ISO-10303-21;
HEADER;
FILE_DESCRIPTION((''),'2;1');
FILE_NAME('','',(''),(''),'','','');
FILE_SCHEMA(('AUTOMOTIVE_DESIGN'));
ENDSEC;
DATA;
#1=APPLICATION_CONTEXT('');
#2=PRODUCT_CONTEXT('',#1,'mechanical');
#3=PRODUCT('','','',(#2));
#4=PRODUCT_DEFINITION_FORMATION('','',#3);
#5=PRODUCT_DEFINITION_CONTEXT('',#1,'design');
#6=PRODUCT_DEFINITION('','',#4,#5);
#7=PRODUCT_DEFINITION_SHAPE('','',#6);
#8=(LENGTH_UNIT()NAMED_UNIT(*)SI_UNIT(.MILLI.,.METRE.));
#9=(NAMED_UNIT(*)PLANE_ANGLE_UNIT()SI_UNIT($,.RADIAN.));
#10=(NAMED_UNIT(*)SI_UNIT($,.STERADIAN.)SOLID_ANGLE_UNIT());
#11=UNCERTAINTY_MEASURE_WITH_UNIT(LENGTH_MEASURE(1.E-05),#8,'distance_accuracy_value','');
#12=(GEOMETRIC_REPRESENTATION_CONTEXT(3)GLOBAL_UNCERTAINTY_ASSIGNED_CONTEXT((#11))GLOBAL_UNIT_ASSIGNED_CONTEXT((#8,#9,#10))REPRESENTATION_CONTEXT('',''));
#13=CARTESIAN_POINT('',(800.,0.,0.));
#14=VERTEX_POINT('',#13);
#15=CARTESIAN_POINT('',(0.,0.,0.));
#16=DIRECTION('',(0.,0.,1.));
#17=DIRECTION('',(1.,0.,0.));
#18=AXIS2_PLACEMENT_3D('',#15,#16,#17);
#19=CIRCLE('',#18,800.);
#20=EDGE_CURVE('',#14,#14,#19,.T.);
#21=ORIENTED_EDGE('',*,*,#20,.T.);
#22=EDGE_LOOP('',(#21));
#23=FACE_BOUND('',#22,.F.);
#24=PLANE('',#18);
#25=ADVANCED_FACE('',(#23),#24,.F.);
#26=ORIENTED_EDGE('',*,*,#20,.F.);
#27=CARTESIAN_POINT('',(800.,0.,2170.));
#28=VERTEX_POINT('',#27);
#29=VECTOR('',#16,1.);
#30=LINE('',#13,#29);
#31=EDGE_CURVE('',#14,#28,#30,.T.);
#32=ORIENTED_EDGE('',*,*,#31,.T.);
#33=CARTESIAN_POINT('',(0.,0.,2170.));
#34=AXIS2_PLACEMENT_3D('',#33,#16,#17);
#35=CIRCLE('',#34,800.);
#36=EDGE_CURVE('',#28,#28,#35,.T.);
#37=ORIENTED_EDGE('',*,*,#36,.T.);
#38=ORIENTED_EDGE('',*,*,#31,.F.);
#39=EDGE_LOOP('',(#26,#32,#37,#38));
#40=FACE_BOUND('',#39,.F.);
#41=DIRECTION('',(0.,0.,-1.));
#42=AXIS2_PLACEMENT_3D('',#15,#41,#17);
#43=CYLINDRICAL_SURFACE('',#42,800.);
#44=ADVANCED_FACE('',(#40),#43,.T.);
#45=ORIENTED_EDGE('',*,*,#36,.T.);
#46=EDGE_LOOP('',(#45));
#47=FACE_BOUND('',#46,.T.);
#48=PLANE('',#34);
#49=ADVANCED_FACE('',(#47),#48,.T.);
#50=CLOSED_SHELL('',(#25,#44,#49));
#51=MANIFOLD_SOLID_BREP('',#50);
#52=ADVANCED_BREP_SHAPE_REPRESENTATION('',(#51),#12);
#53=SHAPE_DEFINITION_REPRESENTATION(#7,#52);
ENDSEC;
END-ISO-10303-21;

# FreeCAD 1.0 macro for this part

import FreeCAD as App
import Part
import Sketcher
Q = App.Units.Quantity

doc = App.newDocument("Part")
body = doc.addObject("PartDesign::Body", "Body")

# Sketch on XY plane
sketch1 = body.newObject("Sketcher::SketchObject", "Sketch")
sketch1.AttachmentSupport = (doc.getObject("XY_Plane"), [""])
sketch1.MapMode = "FlatFace"
sketch1.addGeometry(Part.Circle(App.Vector(0, 0, 0), App.Vector(0, 0, 1), 800), False)
sketch1.addConstraint([
    Sketcher.Constraint("Coincident", 0, 3, -1, 1),
    Sketcher.Constraint("Diameter", 0, Q("1600 mm")),
])
pad1 = body.newObject("PartDesign::Pad", "Pad")
pad1.Profile = sketch1
pad1.Length = 2170

doc.recompute()
